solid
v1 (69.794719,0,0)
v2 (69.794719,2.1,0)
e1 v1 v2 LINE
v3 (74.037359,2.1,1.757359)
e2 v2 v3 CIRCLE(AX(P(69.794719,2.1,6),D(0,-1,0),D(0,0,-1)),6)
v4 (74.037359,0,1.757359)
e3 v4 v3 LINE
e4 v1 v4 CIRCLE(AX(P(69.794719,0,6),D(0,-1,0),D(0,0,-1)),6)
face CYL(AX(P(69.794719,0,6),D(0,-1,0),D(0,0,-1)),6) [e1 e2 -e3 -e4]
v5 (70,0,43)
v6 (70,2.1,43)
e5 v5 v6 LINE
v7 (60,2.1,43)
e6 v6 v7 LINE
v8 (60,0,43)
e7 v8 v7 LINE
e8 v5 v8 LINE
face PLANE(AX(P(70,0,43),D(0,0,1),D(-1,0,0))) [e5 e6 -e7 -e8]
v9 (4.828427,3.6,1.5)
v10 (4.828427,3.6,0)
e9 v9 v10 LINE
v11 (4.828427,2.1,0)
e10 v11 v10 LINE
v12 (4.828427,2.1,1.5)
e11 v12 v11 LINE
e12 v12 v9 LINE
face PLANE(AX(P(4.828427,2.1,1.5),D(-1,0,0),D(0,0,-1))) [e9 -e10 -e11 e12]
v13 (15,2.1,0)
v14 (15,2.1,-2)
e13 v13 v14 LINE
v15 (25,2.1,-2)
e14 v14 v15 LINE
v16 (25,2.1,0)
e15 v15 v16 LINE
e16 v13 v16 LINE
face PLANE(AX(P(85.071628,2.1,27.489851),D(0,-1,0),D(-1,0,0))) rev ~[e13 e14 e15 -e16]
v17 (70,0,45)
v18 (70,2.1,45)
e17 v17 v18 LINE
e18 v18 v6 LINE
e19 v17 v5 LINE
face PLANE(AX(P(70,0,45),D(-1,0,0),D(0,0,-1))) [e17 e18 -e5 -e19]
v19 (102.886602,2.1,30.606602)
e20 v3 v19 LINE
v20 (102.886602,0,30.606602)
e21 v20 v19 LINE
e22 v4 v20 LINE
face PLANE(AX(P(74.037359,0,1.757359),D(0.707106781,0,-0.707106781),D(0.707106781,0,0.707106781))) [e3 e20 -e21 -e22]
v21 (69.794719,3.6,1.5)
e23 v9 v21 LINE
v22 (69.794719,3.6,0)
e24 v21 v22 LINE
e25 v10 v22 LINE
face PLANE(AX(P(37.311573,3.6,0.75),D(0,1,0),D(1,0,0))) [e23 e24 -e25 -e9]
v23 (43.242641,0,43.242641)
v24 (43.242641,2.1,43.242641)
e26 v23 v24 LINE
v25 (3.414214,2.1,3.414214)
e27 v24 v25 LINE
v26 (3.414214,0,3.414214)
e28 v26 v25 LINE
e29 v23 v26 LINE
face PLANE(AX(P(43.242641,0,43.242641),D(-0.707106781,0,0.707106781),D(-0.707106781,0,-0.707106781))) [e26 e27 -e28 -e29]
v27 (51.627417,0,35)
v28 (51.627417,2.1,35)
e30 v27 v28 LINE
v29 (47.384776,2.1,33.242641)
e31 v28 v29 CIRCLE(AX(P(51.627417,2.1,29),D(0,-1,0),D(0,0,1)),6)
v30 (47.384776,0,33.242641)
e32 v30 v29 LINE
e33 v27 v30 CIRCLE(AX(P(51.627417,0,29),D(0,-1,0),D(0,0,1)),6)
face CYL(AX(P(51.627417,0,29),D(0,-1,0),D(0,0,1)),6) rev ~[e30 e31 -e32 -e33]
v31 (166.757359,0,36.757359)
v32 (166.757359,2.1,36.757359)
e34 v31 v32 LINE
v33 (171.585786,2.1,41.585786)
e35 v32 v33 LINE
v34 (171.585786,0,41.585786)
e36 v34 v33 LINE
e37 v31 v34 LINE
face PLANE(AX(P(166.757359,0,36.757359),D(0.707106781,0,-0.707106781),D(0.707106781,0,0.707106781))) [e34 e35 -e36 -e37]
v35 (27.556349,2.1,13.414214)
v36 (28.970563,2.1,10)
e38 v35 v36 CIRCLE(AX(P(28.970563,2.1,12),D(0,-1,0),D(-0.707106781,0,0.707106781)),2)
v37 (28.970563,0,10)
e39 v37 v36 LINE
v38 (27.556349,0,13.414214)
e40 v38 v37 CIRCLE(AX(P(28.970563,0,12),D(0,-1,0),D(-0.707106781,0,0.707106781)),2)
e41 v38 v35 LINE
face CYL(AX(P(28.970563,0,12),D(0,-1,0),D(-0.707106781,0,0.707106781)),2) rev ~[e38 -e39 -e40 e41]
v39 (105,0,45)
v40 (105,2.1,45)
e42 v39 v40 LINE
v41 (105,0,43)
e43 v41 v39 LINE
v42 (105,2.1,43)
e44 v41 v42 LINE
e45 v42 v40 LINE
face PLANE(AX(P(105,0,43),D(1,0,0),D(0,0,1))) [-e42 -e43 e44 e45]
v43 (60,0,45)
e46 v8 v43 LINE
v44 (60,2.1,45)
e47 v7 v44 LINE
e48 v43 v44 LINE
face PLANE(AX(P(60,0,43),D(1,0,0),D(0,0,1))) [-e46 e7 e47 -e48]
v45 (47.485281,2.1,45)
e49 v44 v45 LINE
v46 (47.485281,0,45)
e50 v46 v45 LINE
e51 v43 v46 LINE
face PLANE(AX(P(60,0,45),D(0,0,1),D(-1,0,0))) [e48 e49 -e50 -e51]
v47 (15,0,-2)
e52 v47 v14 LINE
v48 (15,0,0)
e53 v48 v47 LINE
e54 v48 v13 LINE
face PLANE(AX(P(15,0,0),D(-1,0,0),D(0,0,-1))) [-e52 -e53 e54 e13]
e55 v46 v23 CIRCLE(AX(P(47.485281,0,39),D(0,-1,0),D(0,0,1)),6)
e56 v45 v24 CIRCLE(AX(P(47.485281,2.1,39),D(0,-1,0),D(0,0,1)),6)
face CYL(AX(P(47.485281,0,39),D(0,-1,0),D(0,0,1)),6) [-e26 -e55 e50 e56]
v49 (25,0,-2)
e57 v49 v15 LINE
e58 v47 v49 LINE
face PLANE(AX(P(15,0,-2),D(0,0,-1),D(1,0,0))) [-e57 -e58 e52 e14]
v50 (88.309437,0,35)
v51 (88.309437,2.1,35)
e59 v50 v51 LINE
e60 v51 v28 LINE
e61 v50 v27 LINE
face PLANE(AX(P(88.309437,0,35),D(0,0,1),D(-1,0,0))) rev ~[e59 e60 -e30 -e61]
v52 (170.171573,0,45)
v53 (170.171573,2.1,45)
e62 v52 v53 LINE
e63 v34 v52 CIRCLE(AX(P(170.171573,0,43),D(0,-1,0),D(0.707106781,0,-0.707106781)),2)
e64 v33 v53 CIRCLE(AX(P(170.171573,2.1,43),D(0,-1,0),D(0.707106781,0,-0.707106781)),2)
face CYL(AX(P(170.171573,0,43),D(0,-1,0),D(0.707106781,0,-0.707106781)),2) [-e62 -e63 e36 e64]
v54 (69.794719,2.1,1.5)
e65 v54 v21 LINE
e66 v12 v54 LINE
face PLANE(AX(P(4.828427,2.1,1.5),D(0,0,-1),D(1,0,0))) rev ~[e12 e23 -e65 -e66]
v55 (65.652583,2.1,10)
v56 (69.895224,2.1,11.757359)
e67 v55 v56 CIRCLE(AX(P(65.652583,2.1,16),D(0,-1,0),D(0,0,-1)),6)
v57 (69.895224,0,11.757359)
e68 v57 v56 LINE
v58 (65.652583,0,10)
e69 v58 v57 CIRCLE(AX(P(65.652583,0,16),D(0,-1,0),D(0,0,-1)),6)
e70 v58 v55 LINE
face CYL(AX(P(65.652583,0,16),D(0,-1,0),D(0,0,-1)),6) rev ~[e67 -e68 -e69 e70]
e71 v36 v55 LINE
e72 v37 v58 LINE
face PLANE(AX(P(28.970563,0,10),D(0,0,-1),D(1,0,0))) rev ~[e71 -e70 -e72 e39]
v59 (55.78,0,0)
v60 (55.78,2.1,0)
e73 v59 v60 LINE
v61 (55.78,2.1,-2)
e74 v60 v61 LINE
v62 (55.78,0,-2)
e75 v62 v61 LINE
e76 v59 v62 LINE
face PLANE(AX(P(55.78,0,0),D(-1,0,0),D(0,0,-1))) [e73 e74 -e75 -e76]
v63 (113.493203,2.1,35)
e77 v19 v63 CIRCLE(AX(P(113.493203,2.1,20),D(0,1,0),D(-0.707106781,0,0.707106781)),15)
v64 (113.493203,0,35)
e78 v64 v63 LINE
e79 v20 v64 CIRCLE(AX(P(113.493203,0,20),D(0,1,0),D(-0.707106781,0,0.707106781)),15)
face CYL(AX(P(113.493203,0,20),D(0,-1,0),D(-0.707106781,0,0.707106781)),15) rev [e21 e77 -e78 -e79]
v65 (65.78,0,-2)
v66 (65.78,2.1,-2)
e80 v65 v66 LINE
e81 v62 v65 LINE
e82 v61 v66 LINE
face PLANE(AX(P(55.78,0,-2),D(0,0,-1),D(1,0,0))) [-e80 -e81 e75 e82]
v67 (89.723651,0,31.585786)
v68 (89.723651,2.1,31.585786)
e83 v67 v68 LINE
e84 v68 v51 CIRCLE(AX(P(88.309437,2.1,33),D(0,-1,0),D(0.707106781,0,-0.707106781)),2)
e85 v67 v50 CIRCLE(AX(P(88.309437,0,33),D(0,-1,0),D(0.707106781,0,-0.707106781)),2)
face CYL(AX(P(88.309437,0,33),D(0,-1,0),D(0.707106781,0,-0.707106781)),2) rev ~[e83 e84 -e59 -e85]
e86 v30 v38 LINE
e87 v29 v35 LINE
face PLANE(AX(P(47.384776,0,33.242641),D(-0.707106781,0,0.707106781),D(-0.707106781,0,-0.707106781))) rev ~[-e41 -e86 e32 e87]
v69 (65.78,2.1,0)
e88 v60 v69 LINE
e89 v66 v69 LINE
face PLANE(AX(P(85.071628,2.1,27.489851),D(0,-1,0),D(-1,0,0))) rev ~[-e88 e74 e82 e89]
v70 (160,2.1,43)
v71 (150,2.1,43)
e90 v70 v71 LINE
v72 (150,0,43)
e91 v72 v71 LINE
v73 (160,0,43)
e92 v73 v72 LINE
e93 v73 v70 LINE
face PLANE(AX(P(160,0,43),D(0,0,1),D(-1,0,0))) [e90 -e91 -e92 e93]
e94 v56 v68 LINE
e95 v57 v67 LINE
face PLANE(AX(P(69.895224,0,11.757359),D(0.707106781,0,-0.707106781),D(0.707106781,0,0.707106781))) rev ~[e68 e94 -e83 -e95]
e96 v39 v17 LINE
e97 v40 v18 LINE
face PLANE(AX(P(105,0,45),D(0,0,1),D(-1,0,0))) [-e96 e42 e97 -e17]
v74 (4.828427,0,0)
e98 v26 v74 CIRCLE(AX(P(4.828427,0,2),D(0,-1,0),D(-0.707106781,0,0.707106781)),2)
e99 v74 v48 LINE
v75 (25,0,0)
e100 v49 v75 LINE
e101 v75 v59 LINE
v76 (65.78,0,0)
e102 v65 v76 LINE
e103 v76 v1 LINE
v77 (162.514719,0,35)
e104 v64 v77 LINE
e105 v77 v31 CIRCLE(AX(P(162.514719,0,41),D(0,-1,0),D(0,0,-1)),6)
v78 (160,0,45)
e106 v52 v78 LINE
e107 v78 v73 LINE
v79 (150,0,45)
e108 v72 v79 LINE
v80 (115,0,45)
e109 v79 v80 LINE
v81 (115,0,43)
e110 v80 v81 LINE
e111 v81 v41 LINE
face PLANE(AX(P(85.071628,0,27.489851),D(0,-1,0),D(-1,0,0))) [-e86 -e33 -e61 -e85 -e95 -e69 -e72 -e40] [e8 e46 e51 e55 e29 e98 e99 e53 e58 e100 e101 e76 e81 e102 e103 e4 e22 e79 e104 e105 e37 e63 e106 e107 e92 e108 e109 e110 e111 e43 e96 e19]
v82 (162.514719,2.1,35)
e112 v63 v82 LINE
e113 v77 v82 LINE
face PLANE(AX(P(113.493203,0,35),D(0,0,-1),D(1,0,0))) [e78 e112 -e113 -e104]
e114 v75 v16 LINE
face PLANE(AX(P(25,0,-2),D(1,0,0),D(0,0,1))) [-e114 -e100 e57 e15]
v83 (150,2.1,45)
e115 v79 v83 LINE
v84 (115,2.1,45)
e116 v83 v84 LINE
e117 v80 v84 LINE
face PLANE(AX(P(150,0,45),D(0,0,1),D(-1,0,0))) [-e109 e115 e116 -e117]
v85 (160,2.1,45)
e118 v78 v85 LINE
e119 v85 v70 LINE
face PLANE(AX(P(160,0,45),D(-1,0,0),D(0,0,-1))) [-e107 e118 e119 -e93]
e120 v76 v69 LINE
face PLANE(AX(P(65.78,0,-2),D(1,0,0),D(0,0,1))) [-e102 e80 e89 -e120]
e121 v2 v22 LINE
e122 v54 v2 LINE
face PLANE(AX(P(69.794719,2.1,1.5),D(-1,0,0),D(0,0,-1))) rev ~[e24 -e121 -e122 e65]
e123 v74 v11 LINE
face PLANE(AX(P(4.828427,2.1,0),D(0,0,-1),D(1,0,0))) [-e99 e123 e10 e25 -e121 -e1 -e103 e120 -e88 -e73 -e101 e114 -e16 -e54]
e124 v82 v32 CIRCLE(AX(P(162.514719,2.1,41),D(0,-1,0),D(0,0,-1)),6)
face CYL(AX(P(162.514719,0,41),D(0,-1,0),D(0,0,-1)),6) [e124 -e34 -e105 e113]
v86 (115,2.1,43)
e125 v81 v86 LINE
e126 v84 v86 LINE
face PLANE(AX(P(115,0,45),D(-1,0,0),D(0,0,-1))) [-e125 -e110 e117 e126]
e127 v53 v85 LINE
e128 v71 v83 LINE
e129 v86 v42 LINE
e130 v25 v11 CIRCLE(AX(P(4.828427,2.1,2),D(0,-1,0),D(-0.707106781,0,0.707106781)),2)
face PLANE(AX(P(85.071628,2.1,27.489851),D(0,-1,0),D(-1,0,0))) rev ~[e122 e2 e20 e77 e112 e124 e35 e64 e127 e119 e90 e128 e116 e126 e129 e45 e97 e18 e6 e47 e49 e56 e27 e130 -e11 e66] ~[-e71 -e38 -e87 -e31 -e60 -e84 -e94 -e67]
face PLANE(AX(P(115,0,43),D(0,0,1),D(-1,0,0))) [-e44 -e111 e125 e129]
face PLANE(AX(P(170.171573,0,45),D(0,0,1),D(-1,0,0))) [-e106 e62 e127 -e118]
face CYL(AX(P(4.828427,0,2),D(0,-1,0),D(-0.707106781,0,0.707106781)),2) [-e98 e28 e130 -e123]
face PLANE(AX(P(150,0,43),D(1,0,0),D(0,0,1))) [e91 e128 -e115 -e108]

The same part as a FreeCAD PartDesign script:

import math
import FreeCAD as App
import Part
import Sketcher

V = App.Vector
Q = App.Units.Quantity

doc = App.newDocument("Part")
body = doc.addObject("PartDesign::Body", "Body")

sketch1 = doc.addObject("Sketcher::SketchObject", "Sketch")
body.addObject(sketch1)
sketch1.AttachmentSupport = (doc.XZ_Plane, [""])
sketch1.MapMode = "FlatFace"
sketch1.addGeometry(Part.LineSegment(V(15, 0, 0), V(4.828427, 0, 0)), False)
sketch1.addGeometry(Part.ArcOfCircle(Part.Circle(V(4.828427, 2, 0), V(0, 0, 1), 2), math.radians(135), math.radians(270)), False)
sketch1.addGeometry(Part.LineSegment(V(3.414214, 3.414214, 0), V(43.242641, 43.242641, 0)), False)
sketch1.addGeometry(Part.ArcOfCircle(Part.Circle(V(47.485281, 39, 0), V(0, 0, 1), 6), math.radians(90), math.radians(135)), False)
sketch1.addGeometry(Part.LineSegment(V(47.485281, 45, 0), V(60, 45, 0)), False)
sketch1.addGeometry(Part.LineSegment(V(60, 45, 0), V(60, 43, 0)), False)
sketch1.addGeometry(Part.LineSegment(V(60, 43, 0), V(70, 43, 0)), False)
sketch1.addGeometry(Part.LineSegment(V(70, 43, 0), V(70, 45, 0)), False)
sketch1.addGeometry(Part.LineSegment(V(70, 45, 0), V(105, 45, 0)), False)
sketch1.addGeometry(Part.LineSegment(V(105, 45, 0), V(105, 43, 0)), False)
sketch1.addGeometry(Part.LineSegment(V(105, 43, 0), V(115, 43, 0)), False)
sketch1.addGeometry(Part.LineSegment(V(115, 43, 0), V(115, 45, 0)), False)
sketch1.addGeometry(Part.LineSegment(V(115, 45, 0), V(150, 45, 0)), False)
sketch1.addGeometry(Part.LineSegment(V(150, 45, 0), V(150, 43, 0)), False)
sketch1.addGeometry(Part.LineSegment(V(150, 43, 0), V(160, 43, 0)), False)
sketch1.addGeometry(Part.LineSegment(V(160, 43, 0), V(160, 45, 0)), False)
sketch1.addGeometry(Part.LineSegment(V(160, 45, 0), V(170.171573, 45, 0)), False)
sketch1.addGeometry(Part.ArcOfCircle(Part.Circle(V(170.171573, 43, 0), V(0, 0, 1), 2), math.radians(-45), math.radians(90)), False)
sketch1.addGeometry(Part.LineSegment(V(171.585786, 41.585786, 0), V(166.757359, 36.757359, 0)), False)
sketch1.addGeometry(Part.ArcOfCircle(Part.Circle(V(162.514719, 41, 0), V(0, 0, 1), 6), math.radians(-90), math.radians(-45)), False)
sketch1.addGeometry(Part.LineSegment(V(162.514719, 35, 0), V(113.493203, 35, 0)), False)
sketch1.addGeometry(Part.ArcOfCircle(Part.Circle(V(113.493203, 20, 0), V(0, 0, 1), 15), math.radians(90), math.radians(135)), False)
sketch1.addGeometry(Part.LineSegment(V(102.886602, 30.606602, 0), V(74.037359, 1.757359, 0)), False)
sketch1.addGeometry(Part.ArcOfCircle(Part.Circle(V(69.794719, 6, 0), V(0, 0, 1), 6), math.radians(-90), math.radians(-45)), False)
sketch1.addGeometry(Part.LineSegment(V(69.794719, 0, 0), V(65.78, 0, 0)), False)
sketch1.addGeometry(Part.LineSegment(V(65.78, 0, 0), V(65.78, -2, 0)), False)
sketch1.addGeometry(Part.LineSegment(V(65.78, -2, 0), V(55.78, -2, 0)), False)
sketch1.addGeometry(Part.LineSegment(V(55.78, -2, 0), V(55.78, 0, 0)), False)
sketch1.addGeometry(Part.LineSegment(V(55.78, 0, 0), V(25, 0, 0)), False)
sketch1.addGeometry(Part.LineSegment(V(25, 0, 0), V(25, -2, 0)), False)
sketch1.addGeometry(Part.LineSegment(V(25, -2, 0), V(15, -2, 0)), False)
sketch1.addGeometry(Part.LineSegment(V(15, -2, 0), V(15, 0, 0)), False)
sketch1.addGeometry(Part.LineSegment(V(28.970563, 10, 0), V(65.652583, 10, 0)), False)
sketch1.addGeometry(Part.ArcOfCircle(Part.Circle(V(65.652583, 16, 0), V(0, 0, 1), 6), math.radians(-90), math.radians(-45)), False)
sketch1.addGeometry(Part.LineSegment(V(69.895224, 11.757359, 0), V(89.723651, 31.585786, 0)), False)
sketch1.addGeometry(Part.ArcOfCircle(Part.Circle(V(88.309437, 33, 0), V(0, 0, 1), 2), math.radians(-45), math.radians(90)), False)
sketch1.addGeometry(Part.LineSegment(V(88.309437, 35, 0), V(51.627417, 35, 0)), False)
sketch1.addGeometry(Part.ArcOfCircle(Part.Circle(V(51.627417, 29, 0), V(0, 0, 1), 6), math.radians(90), math.radians(135)), False)
sketch1.addGeometry(Part.LineSegment(V(47.384776, 33.242641, 0), V(27.556349, 13.414214, 0)), False)
sketch1.addGeometry(Part.ArcOfCircle(Part.Circle(V(28.970563, 12, 0), V(0, 0, 1), 2), math.radians(135), math.radians(270)), False)
sketch1.addConstraint(Sketcher.Constraint("Tangent", 0, 2, 1, 2))
sketch1.addConstraint(Sketcher.Constraint("Tangent", 1, 1, 2, 1))
sketch1.addConstraint(Sketcher.Constraint("Tangent", 2, 2, 3, 2))
sketch1.addConstraint(Sketcher.Constraint("Tangent", 3, 1, 4, 1))
sketch1.addConstraint(Sketcher.Constraint("Coincident", 4, 2, 5, 1))
sketch1.addConstraint(Sketcher.Constraint("Coincident", 5, 2, 6, 1))
sketch1.addConstraint(Sketcher.Constraint("Coincident", 6, 2, 7, 1))
sketch1.addConstraint(Sketcher.Constraint("Coincident", 7, 2, 8, 1))
sketch1.addConstraint(Sketcher.Constraint("Coincident", 8, 2, 9, 1))
sketch1.addConstraint(Sketcher.Constraint("Coincident", 9, 2, 10, 1))
sketch1.addConstraint(Sketcher.Constraint("Coincident", 10, 2, 11, 1))
sketch1.addConstraint(Sketcher.Constraint("Coincident", 11, 2, 12, 1))
sketch1.addConstraint(Sketcher.Constraint("Coincident", 12, 2, 13, 1))
sketch1.addConstraint(Sketcher.Constraint("Coincident", 13, 2, 14, 1))
sketch1.addConstraint(Sketcher.Constraint("Coincident", 14, 2, 15, 1))
sketch1.addConstraint(Sketcher.Constraint("Coincident", 15, 2, 16, 1))
sketch1.addConstraint(Sketcher.Constraint("Tangent", 16, 2, 17, 2))
sketch1.addConstraint(Sketcher.Constraint("Tangent", 17, 1, 18, 1))
sketch1.addConstraint(Sketcher.Constraint("Tangent", 18, 2, 19, 2))
sketch1.addConstraint(Sketcher.Constraint("Tangent", 19, 1, 20, 1))
sketch1.addConstraint(Sketcher.Constraint("Tangent", 20, 2, 21, 1))
sketch1.addConstraint(Sketcher.Constraint("Tangent", 21, 2, 22, 1))
sketch1.addConstraint(Sketcher.Constraint("Tangent", 22, 2, 23, 2))
sketch1.addConstraint(Sketcher.Constraint("Tangent", 23, 1, 24, 1))
sketch1.addConstraint(Sketcher.Constraint("Coincident", 24, 2, 25, 1))
sketch1.addConstraint(Sketcher.Constraint("Coincident", 25, 2, 26, 1))
sketch1.addConstraint(Sketcher.Constraint("Coincident", 26, 2, 27, 1))
sketch1.addConstraint(Sketcher.Constraint("Coincident", 27, 2, 28, 1))
sketch1.addConstraint(Sketcher.Constraint("Coincident", 28, 2, 29, 1))
sketch1.addConstraint(Sketcher.Constraint("Coincident", 29, 2, 30, 1))
sketch1.addConstraint(Sketcher.Constraint("Coincident", 30, 2, 31, 1))
sketch1.addConstraint(Sketcher.Constraint("Coincident", 31, 2, 0, 1))
sketch1.addConstraint(Sketcher.Constraint("Tangent", 32, 2, 33, 1))
sketch1.addConstraint(Sketcher.Constraint("Tangent", 33, 2, 34, 1))
sketch1.addConstraint(Sketcher.Constraint("Tangent", 34, 2, 35, 1))
sketch1.addConstraint(Sketcher.Constraint("Tangent", 35, 2, 36, 1))
sketch1.addConstraint(Sketcher.Constraint("Tangent", 36, 2, 37, 1))
sketch1.addConstraint(Sketcher.Constraint("Tangent", 37, 2, 38, 1))
sketch1.addConstraint(Sketcher.Constraint("Tangent", 38, 2, 39, 1))
sketch1.addConstraint(Sketcher.Constraint("Tangent", 39, 2, 32, 1))
sketch1.addConstraint(Sketcher.Constraint("Horizontal", 0))
sketch1.addConstraint(Sketcher.Constraint("Horizontal", 4))
sketch1.addConstraint(Sketcher.Constraint("Vertical", 5))
sketch1.addConstraint(Sketcher.Constraint("Horizontal", 6))
sketch1.addConstraint(Sketcher.Constraint("Vertical", 7))
sketch1.addConstraint(Sketcher.Constraint("Horizontal", 8))
sketch1.addConstraint(Sketcher.Constraint("Vertical", 9))
sketch1.addConstraint(Sketcher.Constraint("Horizontal", 10))
sketch1.addConstraint(Sketcher.Constraint("Vertical", 11))
sketch1.addConstraint(Sketcher.Constraint("Horizontal", 12))
sketch1.addConstraint(Sketcher.Constraint("Vertical", 13))
sketch1.addConstraint(Sketcher.Constraint("Horizontal", 14))
sketch1.addConstraint(Sketcher.Constraint("Vertical", 15))
sketch1.addConstraint(Sketcher.Constraint("Horizontal", 16))
sketch1.addConstraint(Sketcher.Constraint("Horizontal", 20))
sketch1.addConstraint(Sketcher.Constraint("Horizontal", 24))
sketch1.addConstraint(Sketcher.Constraint("Vertical", 25))
sketch1.addConstraint(Sketcher.Constraint("Horizontal", 26))
sketch1.addConstraint(Sketcher.Constraint("Vertical", 27))
sketch1.addConstraint(Sketcher.Constraint("Horizontal", 28))
sketch1.addConstraint(Sketcher.Constraint("Vertical", 29))
sketch1.addConstraint(Sketcher.Constraint("Horizontal", 30))
sketch1.addConstraint(Sketcher.Constraint("Vertical", 31))
sketch1.addConstraint(Sketcher.Constraint("Horizontal", 32))
sketch1.addConstraint(Sketcher.Constraint("Horizontal", 36))
sketch1.addConstraint(Sketcher.Constraint("Equal", 1, 17))
sketch1.addConstraint(Sketcher.Constraint("Equal", 3, 19))
sketch1.addConstraint(Sketcher.Constraint("Equal", 19, 23))
sketch1.addConstraint(Sketcher.Constraint("Equal", 23, 33))
sketch1.addConstraint(Sketcher.Constraint("Equal", 17, 35))
sketch1.addConstraint(Sketcher.Constraint("Equal", 33, 37))
sketch1.addConstraint(Sketcher.Constraint("Equal", 35, 39))
sketch1.addConstraint(Sketcher.Constraint("PointOnObject", 0, 2, -1))
sketch1.addConstraint(Sketcher.Constraint("PointOnObject", 23, 1, -1))
sketch1.addConstraint(Sketcher.Constraint("PointOnObject", 27, 2, -1))
sketch1.addConstraint(Sketcher.Constraint("Parallel", 2, 18))
sketch1.addConstraint(Sketcher.Constraint("Parallel", 18, 22))
sketch1.addConstraint(Sketcher.Constraint("Parallel", 22, 34))
sketch1.addConstraint(Sketcher.Constraint("Parallel", 34, 38))
sketch1.addConstraint(Sketcher.Constraint("Horizontal", 17, 3, 5, 2))
sketch1.addConstraint(Sketcher.Constraint("Horizontal", 4, 2, 7, 2))
sketch1.addConstraint(Sketcher.Constraint("Horizontal", 6, 2, 9, 2))
sketch1.addConstraint(Sketcher.Constraint("Horizontal", 8, 2, 11, 2))
sketch1.addConstraint(Sketcher.Constraint("Horizontal", 10, 2, 13, 2))
sketch1.addConstraint(Sketcher.Constraint("Horizontal", 12, 2, 15, 2))
sketch1.addConstraint(Sketcher.Constraint("Horizontal", 26, 2, 29, 2))
sketch1.addConstraint(Sketcher.Constraint("Horizontal", 20, 2, 35, 2))
sketch1.addConstraint(Sketcher.Constraint("Equal", 6, 10))
sketch1.addConstraint(Sketcher.Constraint("Equal", 8, 12))
sketch1.addConstraint(Sketcher.Constraint("Equal", 10, 14))
sketch1.addConstraint(Sketcher.Constraint("Equal", 0, 16))
sketch1.addConstraint(Sketcher.Constraint("Equal", 14, 26))
sketch1.addConstraint(Sketcher.Constraint("Equal", 26, 30))
sketch1.addConstraint(Sketcher.Constraint("Equal", 15, 25))
sketch1.addConstraint(Sketcher.Constraint("Radius", 1, 2.0))
sketch1.addConstraint(Sketcher.Constraint("Radius", 3, 6.0))
sketch1.addConstraint(Sketcher.Constraint("Radius", 21, 15.0))
sketch1.addConstraint(Sketcher.Constraint("DistanceX", 6, 1, 6, 2, 10.0))
sketch1.addConstraint(Sketcher.Constraint("DistanceX", 8, 1, 8, 2, 35.0))
sketch1.addConstraint(Sketcher.Constraint("Angle", 2, Q("45 deg")))
sketch1.addConstraint(Sketcher.Constraint("DistanceY", -1, 1, 3, 3, 39.0))
sketch1.addConstraint(Sketcher.Constraint("DistanceY", -1, 1, 19, 3, 41.0))
sketch1.addConstraint(Sketcher.Constraint("DistanceY", -1, 1, 33, 3, 16.0))
sketch1.addConstraint(Sketcher.Constraint("DistanceX", -1, 1, 4, 2, 60.0))
sketch1.addConstraint(Sketcher.Constraint("DistanceX", -1, 1, 28, 2, 25.0))
sketch1.addConstraint(Sketcher.Constraint("DistanceX", 28, 2, 28, 1, 30.78))
sketch1.addConstraint(Sketcher.Constraint("DistanceX", 23, 3, 19, 3, 92.72))
sketch1.addConstraint(Sketcher.Constraint("DistanceX", 4, 1, 4, 2, 12.514719))
sketch1.addConstraint(Sketcher.Constraint("DistanceX", 32, 1, 32, 2, 36.68202))
sketch1.addConstraint(Sketcher.Constraint("DistanceX", 3, 3, 33, 3, 18.167302))
pad1 = doc.addObject("PartDesign::Pad", "Pad")
body.addObject(pad1)
pad1.Profile = sketch1
pad1.Length = 2.1
pad1.Reversed = True

sketch2 = doc.addObject("Sketcher::SketchObject", "Sketch001")
body.addObject(sketch2)
sketch2.AttachmentSupport = (doc.XZ_Plane, [""])
sketch2.MapMode = "FlatFace"
sketch2.AttachmentOffset = App.Placement(V(0, 0, -2.1), App.Rotation())
sketch2.addGeometry(Part.LineSegment(V(4.828427, 0, 0), V(4.828427, 1.5, 0)), False)
sketch2.addGeometry(Part.LineSegment(V(4.828427, 1.5, 0), V(69.794719, 1.5, 0)), False)
sketch2.addGeometry(Part.LineSegment(V(69.794719, 1.5, 0), V(69.794719, 0, 0)), False)
sketch2.addGeometry(Part.LineSegment(V(69.794719, 0, 0), V(4.828427, 0, 0)), False)
sketch2.addConstraint(Sketcher.Constraint("Coincident", 0, 2, 1, 1))
sketch2.addConstraint(Sketcher.Constraint("Coincident", 1, 2, 2, 1))
sketch2.addConstraint(Sketcher.Constraint("Coincident", 2, 2, 3, 1))
sketch2.addConstraint(Sketcher.Constraint("Coincident", 3, 2, 0, 1))
sketch2.addConstraint(Sketcher.Constraint("Vertical", 0))
sketch2.addConstraint(Sketcher.Constraint("Horizontal", 1))
sketch2.addConstraint(Sketcher.Constraint("Vertical", 2))
sketch2.addConstraint(Sketcher.Constraint("Horizontal", 3))
sketch2.addConstraint(Sketcher.Constraint("PointOnObject", 2, 2, -1))
sketch2.addConstraint(Sketcher.Constraint("DistanceY", 0, 1, 0, 2, 1.5))
sketch2.addConstraint(Sketcher.Constraint("DistanceX", 1, 1, 1, 2, 64.966292))
sketch2.addConstraint(Sketcher.Constraint("DistanceX", -1, 1, 1, 2, 69.794719))
pad2 = doc.addObject("PartDesign::Pad", "Pad001")
body.addObject(pad2)
pad2.Profile = sketch2
pad2.Length = 1.5
pad2.Reversed = True

doc.recompute()
